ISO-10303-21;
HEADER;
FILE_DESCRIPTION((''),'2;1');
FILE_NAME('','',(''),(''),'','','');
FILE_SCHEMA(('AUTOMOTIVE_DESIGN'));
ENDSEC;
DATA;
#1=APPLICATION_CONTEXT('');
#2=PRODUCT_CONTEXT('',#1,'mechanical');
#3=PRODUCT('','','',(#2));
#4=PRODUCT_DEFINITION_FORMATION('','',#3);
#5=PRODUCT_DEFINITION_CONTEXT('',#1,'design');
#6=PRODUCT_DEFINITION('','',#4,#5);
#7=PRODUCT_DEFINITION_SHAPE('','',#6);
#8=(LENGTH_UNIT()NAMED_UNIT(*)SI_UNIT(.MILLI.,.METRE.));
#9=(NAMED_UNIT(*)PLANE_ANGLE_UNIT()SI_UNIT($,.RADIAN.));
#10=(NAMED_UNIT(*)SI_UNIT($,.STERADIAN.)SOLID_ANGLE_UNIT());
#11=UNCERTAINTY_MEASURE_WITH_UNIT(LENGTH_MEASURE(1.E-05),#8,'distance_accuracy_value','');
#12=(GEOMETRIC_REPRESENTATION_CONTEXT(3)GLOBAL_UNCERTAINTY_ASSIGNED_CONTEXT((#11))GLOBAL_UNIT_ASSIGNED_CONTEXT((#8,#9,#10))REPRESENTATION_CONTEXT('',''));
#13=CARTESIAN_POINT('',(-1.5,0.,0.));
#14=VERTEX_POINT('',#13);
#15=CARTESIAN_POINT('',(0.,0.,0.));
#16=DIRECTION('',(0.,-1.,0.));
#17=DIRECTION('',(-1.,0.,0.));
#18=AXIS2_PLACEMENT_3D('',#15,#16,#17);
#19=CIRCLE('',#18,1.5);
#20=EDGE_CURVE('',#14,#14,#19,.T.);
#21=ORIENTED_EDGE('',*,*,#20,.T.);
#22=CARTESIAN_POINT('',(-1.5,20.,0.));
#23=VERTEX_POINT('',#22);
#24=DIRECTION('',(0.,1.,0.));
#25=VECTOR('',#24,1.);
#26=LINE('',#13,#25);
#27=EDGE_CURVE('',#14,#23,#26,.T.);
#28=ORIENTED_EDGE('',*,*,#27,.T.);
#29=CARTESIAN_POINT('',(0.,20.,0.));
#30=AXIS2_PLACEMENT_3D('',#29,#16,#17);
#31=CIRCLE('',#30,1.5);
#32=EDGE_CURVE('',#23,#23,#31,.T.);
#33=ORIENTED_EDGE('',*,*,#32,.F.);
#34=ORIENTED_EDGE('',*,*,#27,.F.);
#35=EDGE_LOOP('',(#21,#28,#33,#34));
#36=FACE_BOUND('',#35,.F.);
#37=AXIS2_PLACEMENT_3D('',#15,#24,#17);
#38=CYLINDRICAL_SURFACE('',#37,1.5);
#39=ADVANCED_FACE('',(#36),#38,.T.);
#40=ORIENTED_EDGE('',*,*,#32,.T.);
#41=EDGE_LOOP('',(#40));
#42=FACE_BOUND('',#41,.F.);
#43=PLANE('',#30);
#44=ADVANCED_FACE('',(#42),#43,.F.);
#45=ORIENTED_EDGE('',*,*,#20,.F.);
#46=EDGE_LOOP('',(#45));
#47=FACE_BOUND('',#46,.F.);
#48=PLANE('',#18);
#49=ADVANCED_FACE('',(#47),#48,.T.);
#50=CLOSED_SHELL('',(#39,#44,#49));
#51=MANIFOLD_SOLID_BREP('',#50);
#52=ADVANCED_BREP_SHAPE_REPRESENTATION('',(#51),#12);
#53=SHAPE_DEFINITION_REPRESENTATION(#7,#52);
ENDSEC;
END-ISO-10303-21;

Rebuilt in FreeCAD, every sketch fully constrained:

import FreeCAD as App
import Part
import Sketcher


def add_polygon(sketch, points):
    """Adds a closed chain of lines whose ends are joined by coincident constraints."""
    first, n = sketch.GeometryCount, len(points)
    for a, b in zip(points, points[1:] + points[:1]):
        sketch.addGeometry(Part.LineSegment(App.Vector(*a, 0), App.Vector(*b, 0)), False)
    for i in range(n):
        sketch.addConstraint(Sketcher.Constraint("Coincident", first + i, 2, first + (i + 1) % n, 1))

doc = App.newDocument("Part")
body = doc.addObject("PartDesign::Body", "Body")

sketch1 = doc.addObject("Sketcher::SketchObject", "Sketch")
body.addObject(sketch1)
sketch1.AttachmentSupport = (doc.XY_Plane, [""])
sketch1.MapMode = "FlatFace"
add_polygon(sketch1, [(-1.5, 0), (0, 0), (0, 20), (-1.5, 20)])
sketch1.addConstraint([
    Sketcher.Constraint("Horizontal", 0),
    Sketcher.Constraint("Vertical", 1),
    Sketcher.Constraint("Horizontal", 2),
    Sketcher.Constraint("Vertical", 3),
    Sketcher.Constraint("Coincident", 0, 2, -1, 1),
    Sketcher.Constraint("DistanceY", 1, 1, 1, 2, 20.0),
    Sketcher.Constraint("DistanceX", 0, 1, 0, 2, 1.5),
])
revolution = doc.addObject("PartDesign::Revolution", "Revolution")
body.addObject(revolution)
revolution.Profile = sketch1
revolution.ReferenceAxis = (sketch1, ["V_Axis"])
revolution.Angle = 360

doc.recompute()
